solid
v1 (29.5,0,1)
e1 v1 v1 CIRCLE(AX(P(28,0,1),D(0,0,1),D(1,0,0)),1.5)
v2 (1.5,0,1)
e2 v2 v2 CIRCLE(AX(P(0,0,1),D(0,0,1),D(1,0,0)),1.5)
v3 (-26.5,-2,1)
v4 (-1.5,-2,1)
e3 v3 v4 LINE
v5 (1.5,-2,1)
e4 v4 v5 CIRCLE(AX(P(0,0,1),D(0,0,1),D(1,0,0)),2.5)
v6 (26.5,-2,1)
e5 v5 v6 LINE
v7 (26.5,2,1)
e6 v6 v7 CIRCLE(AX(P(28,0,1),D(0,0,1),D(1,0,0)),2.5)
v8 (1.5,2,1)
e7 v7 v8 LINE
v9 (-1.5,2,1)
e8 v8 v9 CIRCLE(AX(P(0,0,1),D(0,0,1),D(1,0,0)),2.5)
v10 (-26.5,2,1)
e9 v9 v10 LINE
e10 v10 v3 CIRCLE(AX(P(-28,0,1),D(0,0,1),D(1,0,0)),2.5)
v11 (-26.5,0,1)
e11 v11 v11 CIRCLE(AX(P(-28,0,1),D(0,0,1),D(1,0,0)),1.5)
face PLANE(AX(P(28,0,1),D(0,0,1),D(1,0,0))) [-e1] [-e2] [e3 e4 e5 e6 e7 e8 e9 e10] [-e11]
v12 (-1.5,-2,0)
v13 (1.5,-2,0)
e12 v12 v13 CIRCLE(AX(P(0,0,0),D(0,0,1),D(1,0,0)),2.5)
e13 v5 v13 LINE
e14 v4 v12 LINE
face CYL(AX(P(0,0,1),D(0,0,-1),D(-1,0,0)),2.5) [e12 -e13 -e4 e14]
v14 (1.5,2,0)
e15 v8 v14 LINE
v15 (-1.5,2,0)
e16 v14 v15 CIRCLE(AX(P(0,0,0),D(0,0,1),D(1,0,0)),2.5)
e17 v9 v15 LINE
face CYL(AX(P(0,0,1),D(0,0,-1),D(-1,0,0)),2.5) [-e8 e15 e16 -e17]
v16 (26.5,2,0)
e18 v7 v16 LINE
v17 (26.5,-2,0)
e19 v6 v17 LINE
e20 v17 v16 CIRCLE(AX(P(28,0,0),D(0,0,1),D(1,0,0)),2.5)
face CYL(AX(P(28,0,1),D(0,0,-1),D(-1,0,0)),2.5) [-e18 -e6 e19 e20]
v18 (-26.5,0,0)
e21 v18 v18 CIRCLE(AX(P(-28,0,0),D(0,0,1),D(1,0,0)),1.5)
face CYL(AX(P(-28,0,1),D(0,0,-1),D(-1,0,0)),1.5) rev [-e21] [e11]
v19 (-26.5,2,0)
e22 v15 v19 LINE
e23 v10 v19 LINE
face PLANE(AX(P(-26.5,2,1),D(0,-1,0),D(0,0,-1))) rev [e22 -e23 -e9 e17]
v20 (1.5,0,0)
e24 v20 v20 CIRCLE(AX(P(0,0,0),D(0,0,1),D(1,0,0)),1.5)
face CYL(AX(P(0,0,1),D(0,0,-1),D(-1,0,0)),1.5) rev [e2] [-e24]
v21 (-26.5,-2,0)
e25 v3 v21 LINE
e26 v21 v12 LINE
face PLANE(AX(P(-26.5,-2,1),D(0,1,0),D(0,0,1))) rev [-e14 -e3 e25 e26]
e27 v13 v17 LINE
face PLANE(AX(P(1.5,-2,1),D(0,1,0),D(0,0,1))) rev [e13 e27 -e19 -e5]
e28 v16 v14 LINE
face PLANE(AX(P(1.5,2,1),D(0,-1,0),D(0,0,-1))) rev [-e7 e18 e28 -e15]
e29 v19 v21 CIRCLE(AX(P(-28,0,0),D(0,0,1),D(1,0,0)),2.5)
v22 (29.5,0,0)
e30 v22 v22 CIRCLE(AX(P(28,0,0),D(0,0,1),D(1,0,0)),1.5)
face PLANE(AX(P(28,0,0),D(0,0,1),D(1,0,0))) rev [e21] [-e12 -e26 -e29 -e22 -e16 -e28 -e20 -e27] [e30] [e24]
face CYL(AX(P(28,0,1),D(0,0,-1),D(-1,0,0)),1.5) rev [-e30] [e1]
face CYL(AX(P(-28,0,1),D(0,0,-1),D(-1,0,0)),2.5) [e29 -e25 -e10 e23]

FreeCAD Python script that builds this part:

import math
import FreeCAD as App
import Part
import Sketcher
from FreeCAD import Vector

doc = App.newDocument("Part")
body = doc.addObject("PartDesign::Body", "Body")

sketch1 = doc.addObject("Sketcher::SketchObject", "Sketch")
body.addObject(sketch1)
sketch1.AttachmentSupport = (doc.XY_Plane, [""])
sketch1.MapMode = "FlatFace"
sketch1.addGeometry(Part.LineSegment(Vector(26.5, 2, 0), Vector(1.5, 2, 0)), False)
sketch1.addGeometry(Part.ArcOfCircle(Part.Circle(Vector(0, 0, 0), Vector(0, 0, 1), 2.5), math.radians(53), math.radians(127)), False)
sketch1.addGeometry(Part.LineSegment(Vector(-1.5, 2, 0), Vector(-26.5, 2, 0)), False)
sketch1.addGeometry(Part.ArcOfCircle(Part.Circle(Vector(-28, 0, 0), Vector(0, 0, 1), 2.5), math.radians(53), math.radians(307)), False)
sketch1.addGeometry(Part.LineSegment(Vector(-26.5, -2, 0), Vector(-1.5, -2, 0)), False)
sketch1.addGeometry(Part.ArcOfCircle(Part.Circle(Vector(0, 0, 0), Vector(0, 0, 1), 2.5), math.radians(-127), math.radians(-53)), False)
sketch1.addGeometry(Part.LineSegment(Vector(1.5, -2, 0), Vector(26.5, -2, 0)), False)
sketch1.addGeometry(Part.ArcOfCircle(Part.Circle(Vector(28, 0, 0), Vector(0, 0, 1), 2.5), math.radians(-127), math.radians(127)), False)
sketch1.addGeometry(Part.Circle(Vector(28, 0, 0), Vector(0, 0, 1), 1.5), False)
sketch1.addGeometry(Part.Circle(Vector(0, 0, 0), Vector(0, 0, 1), 1.5), False)
sketch1.addGeometry(Part.Circle(Vector(-28, 0, 0), Vector(0, 0, 1), 1.5), False)
sketch1.addConstraint(Sketcher.Constraint("Coincident", 0, 2, 1, 1))
sketch1.addConstraint(Sketcher.Constraint("Coincident", 1, 2, 2, 1))
sketch1.addConstraint(Sketcher.Constraint("Coincident", 2, 2, 3, 1))
sketch1.addConstraint(Sketcher.Constraint("Coincident", 3, 2, 4, 1))
sketch1.addConstraint(Sketcher.Constraint("Coincident", 4, 2, 5, 1))
sketch1.addConstraint(Sketcher.Constraint("Coincident", 5, 2, 6, 1))
sketch1.addConstraint(Sketcher.Constraint("Coincident", 6, 2, 7, 1))
sketch1.addConstraint(Sketcher.Constraint("Coincident", 7, 2, 0, 1))
sketch1.addConstraint(Sketcher.Constraint("Horizontal", 0))
sketch1.addConstraint(Sketcher.Constraint("Horizontal", 2))
sketch1.addConstraint(Sketcher.Constraint("Horizontal", 4))
sketch1.addConstraint(Sketcher.Constraint("Horizontal", 6))
sketch1.addConstraint(Sketcher.Constraint("Coincident", 1, 3, -1, 1))
sketch1.addConstraint(Sketcher.Constraint("Coincident", 5, 3, -1, 1))
sketch1.addConstraint(Sketcher.Constraint("Coincident", 9, 3, -1, 1))
sketch1.addConstraint(Sketcher.Constraint("Coincident", 8, 3, 7, 3))
sketch1.addConstraint(Sketcher.Constraint("Coincident", 10, 3, 3, 3))
sketch1.addConstraint(Sketcher.Constraint("Equal", 1, 3))
sketch1.addConstraint(Sketcher.Constraint("Equal", 3, 5))
sketch1.addConstraint(Sketcher.Constraint("Equal", 5, 7))
sketch1.addConstraint(Sketcher.Constraint("Equal", 8, 9))
sketch1.addConstraint(Sketcher.Constraint("Equal", 9, 10))
sketch1.addConstraint(Sketcher.Constraint("Symmetric", 3, 3, 7, 3, -1, 1))
sketch1.addConstraint(Sketcher.Constraint("Symmetric", 3, 2, 6, 2, -2))
sketch1.addConstraint(Sketcher.Constraint("Horizontal", 0, 2, 1, 2))
sketch1.addConstraint(Sketcher.Constraint("Vertical", 2, 2, 3, 2))
sketch1.addConstraint(Sketcher.Constraint("Diameter", 8, 3.0))
sketch1.addConstraint(Sketcher.Constraint("Radius", 1, 2.5))
sketch1.addConstraint(Sketcher.Constraint("DistanceX", 0, 2, 0, 1, 25.0))
sketch1.addConstraint(Sketcher.Constraint("DistanceX", 3, 3, -1, 1, 28.0))
pad1 = doc.addObject("PartDesign::Pad", "Pad")
body.addObject(pad1)
pad1.Profile = sketch1
pad1.Length = 1

doc.recompute()
